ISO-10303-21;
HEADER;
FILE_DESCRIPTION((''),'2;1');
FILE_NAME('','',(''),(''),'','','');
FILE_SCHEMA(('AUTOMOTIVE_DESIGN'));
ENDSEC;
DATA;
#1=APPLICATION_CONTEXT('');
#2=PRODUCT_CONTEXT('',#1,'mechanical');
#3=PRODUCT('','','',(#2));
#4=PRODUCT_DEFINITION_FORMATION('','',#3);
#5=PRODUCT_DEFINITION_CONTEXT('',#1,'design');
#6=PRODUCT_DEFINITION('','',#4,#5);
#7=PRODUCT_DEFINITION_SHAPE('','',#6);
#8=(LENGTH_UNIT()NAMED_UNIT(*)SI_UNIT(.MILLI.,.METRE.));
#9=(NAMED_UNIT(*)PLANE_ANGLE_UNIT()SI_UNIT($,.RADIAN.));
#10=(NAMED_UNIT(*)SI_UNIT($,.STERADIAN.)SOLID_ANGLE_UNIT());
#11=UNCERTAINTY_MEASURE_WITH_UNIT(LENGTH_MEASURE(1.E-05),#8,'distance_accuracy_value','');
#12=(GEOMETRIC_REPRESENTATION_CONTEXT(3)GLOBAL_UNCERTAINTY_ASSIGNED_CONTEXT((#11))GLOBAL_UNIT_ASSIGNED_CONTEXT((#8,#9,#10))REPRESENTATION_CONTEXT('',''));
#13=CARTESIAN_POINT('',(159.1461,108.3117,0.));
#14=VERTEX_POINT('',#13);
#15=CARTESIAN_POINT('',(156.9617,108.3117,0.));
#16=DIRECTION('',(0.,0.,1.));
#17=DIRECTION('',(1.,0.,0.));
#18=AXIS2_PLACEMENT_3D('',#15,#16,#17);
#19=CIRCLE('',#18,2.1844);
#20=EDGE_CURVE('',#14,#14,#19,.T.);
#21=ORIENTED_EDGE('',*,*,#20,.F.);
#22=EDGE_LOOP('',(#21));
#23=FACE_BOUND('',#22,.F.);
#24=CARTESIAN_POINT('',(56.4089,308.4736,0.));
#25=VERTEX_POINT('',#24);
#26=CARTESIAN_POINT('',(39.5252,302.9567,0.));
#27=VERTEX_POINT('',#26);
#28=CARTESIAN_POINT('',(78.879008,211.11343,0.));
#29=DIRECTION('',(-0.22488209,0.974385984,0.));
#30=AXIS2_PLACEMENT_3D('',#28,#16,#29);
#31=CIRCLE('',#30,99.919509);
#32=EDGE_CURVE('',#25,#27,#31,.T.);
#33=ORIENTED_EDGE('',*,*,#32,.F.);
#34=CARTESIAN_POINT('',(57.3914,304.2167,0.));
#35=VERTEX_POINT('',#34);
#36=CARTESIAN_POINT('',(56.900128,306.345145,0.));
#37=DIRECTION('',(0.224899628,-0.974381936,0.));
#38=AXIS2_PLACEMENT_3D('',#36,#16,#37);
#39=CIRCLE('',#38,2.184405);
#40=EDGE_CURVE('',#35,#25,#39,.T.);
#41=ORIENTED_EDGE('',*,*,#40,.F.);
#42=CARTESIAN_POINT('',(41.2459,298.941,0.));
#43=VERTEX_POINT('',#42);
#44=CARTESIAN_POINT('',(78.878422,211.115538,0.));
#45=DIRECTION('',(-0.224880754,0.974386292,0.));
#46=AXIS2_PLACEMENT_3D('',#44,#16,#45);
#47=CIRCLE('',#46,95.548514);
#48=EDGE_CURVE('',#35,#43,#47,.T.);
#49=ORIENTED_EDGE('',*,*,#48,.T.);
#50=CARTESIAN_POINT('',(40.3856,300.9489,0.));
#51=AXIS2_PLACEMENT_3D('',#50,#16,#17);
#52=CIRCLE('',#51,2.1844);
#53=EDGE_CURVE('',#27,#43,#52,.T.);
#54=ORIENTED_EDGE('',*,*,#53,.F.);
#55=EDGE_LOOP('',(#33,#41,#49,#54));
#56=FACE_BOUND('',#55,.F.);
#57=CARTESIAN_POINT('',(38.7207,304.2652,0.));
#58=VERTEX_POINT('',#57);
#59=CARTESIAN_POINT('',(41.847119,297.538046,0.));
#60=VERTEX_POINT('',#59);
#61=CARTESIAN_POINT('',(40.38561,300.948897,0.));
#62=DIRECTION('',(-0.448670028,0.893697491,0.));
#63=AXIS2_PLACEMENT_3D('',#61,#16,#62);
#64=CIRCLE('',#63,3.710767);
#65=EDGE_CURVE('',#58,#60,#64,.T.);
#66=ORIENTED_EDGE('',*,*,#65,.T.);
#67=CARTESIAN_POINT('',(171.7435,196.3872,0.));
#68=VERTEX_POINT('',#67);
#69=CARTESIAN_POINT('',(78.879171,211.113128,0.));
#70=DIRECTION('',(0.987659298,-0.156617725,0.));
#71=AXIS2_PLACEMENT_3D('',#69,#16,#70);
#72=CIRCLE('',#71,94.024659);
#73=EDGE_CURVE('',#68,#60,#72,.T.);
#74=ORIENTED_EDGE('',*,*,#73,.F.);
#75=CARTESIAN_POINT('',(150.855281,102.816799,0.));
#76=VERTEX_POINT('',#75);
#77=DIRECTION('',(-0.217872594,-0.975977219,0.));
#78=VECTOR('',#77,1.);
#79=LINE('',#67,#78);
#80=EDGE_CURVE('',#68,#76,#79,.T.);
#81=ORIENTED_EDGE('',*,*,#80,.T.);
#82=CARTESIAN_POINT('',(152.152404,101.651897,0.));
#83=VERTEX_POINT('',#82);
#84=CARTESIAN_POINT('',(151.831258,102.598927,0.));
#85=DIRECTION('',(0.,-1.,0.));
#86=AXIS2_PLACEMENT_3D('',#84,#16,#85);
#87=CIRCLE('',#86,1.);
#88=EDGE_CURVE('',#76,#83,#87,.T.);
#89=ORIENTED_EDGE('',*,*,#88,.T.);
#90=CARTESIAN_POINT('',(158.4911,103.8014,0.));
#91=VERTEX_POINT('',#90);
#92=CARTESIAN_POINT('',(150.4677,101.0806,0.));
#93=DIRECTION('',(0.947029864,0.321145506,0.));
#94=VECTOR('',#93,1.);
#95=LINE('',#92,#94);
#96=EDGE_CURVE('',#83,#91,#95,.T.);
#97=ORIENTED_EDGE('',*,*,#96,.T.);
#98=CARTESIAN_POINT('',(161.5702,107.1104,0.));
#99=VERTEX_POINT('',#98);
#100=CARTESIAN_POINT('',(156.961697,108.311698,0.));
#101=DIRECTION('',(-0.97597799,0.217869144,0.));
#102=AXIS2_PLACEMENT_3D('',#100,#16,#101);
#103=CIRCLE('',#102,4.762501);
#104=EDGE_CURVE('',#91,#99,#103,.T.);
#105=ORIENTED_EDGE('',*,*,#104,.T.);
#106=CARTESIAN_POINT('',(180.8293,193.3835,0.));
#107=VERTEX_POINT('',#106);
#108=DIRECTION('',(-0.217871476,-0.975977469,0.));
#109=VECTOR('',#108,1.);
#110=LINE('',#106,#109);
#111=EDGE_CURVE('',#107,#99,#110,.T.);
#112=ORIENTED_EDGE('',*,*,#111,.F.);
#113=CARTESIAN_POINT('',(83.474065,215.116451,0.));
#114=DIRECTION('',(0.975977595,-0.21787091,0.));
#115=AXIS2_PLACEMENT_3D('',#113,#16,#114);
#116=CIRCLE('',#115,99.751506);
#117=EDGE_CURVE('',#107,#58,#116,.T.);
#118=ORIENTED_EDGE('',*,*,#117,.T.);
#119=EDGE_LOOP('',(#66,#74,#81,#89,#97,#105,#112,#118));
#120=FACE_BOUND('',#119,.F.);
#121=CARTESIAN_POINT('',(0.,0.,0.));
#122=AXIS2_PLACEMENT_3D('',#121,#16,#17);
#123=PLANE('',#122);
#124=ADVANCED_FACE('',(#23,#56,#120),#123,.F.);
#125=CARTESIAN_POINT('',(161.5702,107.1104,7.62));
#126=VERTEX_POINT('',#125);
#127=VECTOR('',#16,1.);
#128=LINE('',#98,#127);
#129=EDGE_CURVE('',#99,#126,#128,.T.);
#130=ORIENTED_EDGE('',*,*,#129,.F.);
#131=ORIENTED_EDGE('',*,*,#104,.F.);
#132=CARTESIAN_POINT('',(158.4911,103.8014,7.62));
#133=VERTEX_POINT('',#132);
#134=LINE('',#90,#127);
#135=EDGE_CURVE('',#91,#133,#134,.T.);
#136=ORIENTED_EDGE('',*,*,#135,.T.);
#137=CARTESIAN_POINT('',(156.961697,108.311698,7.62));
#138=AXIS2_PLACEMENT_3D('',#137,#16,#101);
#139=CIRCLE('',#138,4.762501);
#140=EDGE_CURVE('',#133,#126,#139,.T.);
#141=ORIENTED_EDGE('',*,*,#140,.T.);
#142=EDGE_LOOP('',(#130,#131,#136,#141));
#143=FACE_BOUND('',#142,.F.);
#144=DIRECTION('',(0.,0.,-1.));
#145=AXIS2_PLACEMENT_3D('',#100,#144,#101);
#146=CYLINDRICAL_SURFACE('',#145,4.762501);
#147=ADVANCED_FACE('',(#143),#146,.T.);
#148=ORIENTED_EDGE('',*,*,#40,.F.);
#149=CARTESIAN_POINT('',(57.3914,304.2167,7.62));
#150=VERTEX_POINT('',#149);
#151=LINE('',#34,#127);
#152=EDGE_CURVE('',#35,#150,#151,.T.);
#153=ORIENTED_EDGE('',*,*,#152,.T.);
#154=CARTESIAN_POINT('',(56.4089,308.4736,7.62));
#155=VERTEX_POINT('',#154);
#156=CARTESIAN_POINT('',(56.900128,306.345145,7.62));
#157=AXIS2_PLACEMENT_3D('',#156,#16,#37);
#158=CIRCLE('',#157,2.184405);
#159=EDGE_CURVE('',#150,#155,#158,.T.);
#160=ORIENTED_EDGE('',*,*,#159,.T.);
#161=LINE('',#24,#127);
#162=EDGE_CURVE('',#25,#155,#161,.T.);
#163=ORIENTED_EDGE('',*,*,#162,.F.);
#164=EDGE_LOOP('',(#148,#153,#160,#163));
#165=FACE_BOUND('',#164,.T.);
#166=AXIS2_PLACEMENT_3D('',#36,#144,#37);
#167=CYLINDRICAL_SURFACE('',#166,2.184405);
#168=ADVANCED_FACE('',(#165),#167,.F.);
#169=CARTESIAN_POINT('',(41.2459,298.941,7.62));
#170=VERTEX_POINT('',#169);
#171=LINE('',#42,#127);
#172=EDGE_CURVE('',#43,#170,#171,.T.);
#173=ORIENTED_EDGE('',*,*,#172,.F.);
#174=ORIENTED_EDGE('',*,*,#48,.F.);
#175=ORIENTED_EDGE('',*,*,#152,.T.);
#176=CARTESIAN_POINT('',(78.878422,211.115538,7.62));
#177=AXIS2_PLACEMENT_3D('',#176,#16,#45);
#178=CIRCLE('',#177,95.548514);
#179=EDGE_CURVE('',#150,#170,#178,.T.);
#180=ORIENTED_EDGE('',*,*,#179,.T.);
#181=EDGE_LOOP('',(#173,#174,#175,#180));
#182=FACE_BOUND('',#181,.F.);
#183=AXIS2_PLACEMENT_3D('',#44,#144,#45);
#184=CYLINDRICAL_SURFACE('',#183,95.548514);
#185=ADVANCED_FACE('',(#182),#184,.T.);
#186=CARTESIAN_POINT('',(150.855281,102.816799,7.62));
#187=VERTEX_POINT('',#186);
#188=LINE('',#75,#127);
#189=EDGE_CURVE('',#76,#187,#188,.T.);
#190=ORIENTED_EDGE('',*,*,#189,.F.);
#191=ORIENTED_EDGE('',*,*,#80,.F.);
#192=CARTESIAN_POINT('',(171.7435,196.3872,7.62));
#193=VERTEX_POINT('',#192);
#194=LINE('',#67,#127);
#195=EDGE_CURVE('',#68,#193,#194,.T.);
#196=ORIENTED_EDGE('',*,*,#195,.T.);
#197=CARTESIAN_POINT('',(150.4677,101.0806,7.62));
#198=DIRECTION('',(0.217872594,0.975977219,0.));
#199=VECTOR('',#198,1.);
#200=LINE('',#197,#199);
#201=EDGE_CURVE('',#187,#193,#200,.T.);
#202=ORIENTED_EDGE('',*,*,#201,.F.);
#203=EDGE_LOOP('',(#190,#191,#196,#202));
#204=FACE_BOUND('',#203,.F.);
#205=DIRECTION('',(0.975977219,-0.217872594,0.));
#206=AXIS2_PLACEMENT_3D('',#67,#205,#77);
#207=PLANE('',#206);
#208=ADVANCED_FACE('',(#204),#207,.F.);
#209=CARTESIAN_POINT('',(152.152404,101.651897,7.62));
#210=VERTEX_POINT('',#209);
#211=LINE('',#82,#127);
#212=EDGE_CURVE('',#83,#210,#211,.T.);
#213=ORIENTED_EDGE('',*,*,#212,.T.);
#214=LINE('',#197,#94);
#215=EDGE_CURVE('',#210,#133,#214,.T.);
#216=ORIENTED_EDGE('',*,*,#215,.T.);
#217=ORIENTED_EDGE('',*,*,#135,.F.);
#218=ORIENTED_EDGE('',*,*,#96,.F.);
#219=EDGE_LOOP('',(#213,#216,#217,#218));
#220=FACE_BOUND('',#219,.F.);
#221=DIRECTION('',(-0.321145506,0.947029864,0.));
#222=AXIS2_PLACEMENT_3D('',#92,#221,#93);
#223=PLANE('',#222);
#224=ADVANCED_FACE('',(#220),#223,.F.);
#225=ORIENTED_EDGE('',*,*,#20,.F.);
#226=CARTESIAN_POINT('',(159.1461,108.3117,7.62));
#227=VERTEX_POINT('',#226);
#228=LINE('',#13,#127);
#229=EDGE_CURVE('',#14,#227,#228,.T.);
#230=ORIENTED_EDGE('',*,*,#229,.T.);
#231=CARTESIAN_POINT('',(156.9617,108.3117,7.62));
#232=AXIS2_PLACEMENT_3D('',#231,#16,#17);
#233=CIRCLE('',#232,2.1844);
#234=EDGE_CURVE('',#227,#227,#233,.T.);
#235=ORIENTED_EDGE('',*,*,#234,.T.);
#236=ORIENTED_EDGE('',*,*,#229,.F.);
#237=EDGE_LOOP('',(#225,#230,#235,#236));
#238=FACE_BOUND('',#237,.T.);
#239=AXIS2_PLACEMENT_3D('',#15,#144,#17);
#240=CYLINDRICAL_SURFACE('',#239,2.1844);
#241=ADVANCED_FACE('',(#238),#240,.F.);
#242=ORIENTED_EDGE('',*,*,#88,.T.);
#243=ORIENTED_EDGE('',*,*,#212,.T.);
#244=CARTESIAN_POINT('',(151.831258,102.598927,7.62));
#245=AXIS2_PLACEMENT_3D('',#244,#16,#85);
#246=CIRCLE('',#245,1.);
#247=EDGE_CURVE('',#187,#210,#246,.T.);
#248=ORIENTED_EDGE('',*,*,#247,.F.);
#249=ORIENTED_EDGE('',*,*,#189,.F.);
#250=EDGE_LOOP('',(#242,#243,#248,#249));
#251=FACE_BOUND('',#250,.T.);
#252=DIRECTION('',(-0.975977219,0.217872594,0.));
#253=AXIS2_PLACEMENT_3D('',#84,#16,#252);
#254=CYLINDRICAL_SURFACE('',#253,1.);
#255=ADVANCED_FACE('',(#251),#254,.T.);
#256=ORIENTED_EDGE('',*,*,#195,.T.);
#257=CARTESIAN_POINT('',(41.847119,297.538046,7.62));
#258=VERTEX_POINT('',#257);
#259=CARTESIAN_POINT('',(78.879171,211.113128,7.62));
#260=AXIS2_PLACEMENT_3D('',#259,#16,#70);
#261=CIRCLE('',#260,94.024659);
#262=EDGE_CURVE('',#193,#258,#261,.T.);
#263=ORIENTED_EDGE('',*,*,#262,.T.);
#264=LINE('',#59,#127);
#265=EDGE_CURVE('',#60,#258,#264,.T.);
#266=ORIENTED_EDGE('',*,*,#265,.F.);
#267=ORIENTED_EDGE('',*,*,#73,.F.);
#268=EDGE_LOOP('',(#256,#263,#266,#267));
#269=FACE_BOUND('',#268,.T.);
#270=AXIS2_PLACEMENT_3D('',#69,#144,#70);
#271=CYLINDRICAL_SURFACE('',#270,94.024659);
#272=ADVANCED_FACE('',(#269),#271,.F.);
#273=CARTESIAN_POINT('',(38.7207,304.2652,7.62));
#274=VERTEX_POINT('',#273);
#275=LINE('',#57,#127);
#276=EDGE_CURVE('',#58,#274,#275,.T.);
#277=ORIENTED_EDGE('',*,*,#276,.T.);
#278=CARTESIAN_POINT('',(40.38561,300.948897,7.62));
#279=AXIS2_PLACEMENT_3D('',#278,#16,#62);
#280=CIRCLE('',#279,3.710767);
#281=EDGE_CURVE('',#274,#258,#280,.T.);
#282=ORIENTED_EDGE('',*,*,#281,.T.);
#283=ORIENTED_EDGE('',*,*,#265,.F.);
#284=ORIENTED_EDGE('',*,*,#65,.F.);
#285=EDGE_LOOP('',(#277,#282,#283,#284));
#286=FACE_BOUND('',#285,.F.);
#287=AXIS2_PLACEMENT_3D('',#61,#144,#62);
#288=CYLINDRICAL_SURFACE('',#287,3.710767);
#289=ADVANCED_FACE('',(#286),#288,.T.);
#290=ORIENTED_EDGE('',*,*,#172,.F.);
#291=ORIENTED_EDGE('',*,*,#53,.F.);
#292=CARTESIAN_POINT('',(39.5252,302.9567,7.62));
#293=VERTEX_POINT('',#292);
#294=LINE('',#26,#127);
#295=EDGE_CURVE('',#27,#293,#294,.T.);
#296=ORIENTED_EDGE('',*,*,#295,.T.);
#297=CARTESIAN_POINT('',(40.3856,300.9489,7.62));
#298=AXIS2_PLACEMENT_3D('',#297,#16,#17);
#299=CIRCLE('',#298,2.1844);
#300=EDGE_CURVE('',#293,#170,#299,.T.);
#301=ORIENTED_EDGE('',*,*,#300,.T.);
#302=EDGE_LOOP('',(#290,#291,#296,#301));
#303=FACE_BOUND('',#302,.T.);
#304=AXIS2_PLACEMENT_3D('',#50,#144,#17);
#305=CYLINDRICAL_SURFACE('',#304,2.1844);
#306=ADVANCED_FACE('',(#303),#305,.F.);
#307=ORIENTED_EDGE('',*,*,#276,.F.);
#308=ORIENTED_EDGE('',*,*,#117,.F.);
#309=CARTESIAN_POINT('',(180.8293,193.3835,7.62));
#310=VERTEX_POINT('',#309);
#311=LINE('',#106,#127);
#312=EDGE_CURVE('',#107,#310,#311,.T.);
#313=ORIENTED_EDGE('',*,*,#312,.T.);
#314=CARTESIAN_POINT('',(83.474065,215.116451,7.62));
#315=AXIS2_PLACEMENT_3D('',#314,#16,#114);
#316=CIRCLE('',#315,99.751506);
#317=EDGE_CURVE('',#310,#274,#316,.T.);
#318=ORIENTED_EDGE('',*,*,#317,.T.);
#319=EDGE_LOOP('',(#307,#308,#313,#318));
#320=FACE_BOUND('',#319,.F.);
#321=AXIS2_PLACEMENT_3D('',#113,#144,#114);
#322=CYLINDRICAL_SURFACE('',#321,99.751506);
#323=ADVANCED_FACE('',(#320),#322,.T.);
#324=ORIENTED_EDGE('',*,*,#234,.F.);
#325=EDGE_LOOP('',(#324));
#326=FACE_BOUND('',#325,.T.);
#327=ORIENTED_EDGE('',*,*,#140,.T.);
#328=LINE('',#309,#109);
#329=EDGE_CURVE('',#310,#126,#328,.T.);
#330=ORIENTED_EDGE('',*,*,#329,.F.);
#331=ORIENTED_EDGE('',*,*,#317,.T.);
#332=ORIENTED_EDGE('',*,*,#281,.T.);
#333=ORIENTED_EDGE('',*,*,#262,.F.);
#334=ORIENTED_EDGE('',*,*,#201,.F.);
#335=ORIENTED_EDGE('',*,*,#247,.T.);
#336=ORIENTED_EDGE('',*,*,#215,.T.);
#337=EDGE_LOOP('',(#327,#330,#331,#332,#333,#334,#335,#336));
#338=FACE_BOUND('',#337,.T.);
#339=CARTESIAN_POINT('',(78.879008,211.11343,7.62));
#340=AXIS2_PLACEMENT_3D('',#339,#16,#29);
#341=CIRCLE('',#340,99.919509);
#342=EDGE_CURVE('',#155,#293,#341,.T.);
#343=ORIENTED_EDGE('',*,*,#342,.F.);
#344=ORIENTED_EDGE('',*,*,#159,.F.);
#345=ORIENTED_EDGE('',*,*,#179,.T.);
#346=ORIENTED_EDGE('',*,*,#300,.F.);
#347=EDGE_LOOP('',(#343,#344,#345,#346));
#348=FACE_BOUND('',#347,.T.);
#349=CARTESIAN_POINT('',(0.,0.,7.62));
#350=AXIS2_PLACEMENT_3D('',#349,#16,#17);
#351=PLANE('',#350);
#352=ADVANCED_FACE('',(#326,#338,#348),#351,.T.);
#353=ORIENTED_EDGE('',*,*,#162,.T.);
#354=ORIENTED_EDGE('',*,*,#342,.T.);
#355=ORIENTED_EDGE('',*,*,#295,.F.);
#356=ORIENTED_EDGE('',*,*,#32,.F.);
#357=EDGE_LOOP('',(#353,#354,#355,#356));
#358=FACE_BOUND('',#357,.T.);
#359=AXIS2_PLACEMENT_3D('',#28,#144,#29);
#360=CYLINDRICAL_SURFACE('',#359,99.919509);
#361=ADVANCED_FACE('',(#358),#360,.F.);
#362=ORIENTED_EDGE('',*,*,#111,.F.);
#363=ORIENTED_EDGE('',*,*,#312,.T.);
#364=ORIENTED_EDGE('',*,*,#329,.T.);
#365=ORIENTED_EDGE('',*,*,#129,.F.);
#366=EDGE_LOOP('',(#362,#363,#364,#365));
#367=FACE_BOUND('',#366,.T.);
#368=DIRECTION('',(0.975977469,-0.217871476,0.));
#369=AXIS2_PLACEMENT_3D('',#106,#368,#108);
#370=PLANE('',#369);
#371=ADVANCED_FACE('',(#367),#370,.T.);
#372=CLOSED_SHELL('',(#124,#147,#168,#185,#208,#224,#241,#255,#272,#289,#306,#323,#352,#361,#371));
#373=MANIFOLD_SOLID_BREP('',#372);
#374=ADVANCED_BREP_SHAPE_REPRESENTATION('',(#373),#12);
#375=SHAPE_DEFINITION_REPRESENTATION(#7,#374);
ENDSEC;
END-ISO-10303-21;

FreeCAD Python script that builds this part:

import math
import FreeCAD as App
import Part
import Sketcher
from FreeCAD import Vector
Q = App.Units.Quantity


def edges_at(feature, points):
    """Names of the edges that pass closest to the given points."""
    edges = feature.Shape.Edges
    near = lambda p: min(range(len(edges)), key=lambda i: edges[i].distToShape(Part.Vertex(*p))[0])
    return sorted({f"Edge{near(p) + 1}" for p in points})

doc = App.newDocument("Part")
body = doc.addObject("PartDesign::Body", "Body")

sketch1 = body.newObject("Sketcher::SketchObject", "Sketch")
sketch1.AttachmentSupport = (doc.getObject("XY_Plane"), [""])
sketch1.MapMode = "FlatFace"
sketch1.addGeometry(Part.ArcOfCircle(Part.Circle(Vector(78.8791, 211.1131, 0), Vector(0, 0, 1), 94.024725), math.radians(-9.010607), math.radians(113.194512)), False)
sketch1.addGeometry(Part.LineSegment(Vector(171.7435, 196.3872, 0), Vector(150.4677, 101.0806, 0)), False)
sketch1.addGeometry(Part.LineSegment(Vector(150.4677, 101.0806, 0), Vector(158.4911, 103.8014, 0)), False)
sketch1.addGeometry(Part.ArcOfCircle(Part.Circle(Vector(156.9617, 108.3117, 0), Vector(0, 0, 1), 4.762504), math.radians(-71.268689), math.radians(-14.610195)), False)
sketch1.addGeometry(Part.LineSegment(Vector(161.5702, 107.1104, 0), Vector(180.8293, 193.3835, 0)), False)
sketch1.addGeometry(Part.ArcOfCircle(Part.Circle(Vector(83.4742, 215.1165, 0), Vector(0, 0, 1), 99.751385), math.radians(-12.584056), math.radians(116.657089)), False)
sketch1.addGeometry(Part.ArcOfCircle(Part.Circle(Vector(40.3856, 300.9489, 0), Vector(0, 0, 1), 3.71076), math.radians(116.658271), math.radians(293.194676)), False)
sketch1.addGeometry(Part.Circle(Vector(156.9617, 108.3117, 0), Vector(0, 0, 1), 2.1844), False)
sketch1.addGeometry(Part.ArcOfCircle(Part.Circle(Vector(40.3856, 300.9489, 0), Vector(0, 0, 1), 2.1844), math.radians(113.196524), math.radians(293.19308)), False)
sketch1.addGeometry(Part.ArcOfCircle(Part.Circle(Vector(78.8791, 211.1131, 0), Vector(0, 0, 1), 99.919852), math.radians(102.995953), math.radians(113.194562)), False)
sketch1.addGeometry(Part.ArcOfCircle(Part.Circle(Vector(56.9002, 306.3451, 0), Vector(0, 0, 1), 2.184345), math.radians(-77.004597), math.radians(102.997369)), False)
sketch1.addGeometry(Part.ArcOfCircle(Part.Circle(Vector(78.878422, 211.115538, 0), Vector(0, 0, 1), 95.548514), math.radians(102.995866), math.radians(113.194753)), False)
sketch1.addConstraint(Sketcher.Constraint("Coincident", 0, 1, 1, 1))
sketch1.addConstraint(Sketcher.Constraint("Coincident", 1, 2, 2, 1))
sketch1.addConstraint(Sketcher.Constraint("Coincident", 2, 2, 3, 1))
sketch1.addConstraint(Sketcher.Constraint("Coincident", 3, 2, 4, 1))
sketch1.addConstraint(Sketcher.Constraint("Coincident", 4, 2, 5, 1))
sketch1.addConstraint(Sketcher.Constraint("Coincident", 5, 2, 6, 1))
sketch1.addConstraint(Sketcher.Constraint("Coincident", 6, 2, 0, 2))
sketch1.addConstraint(Sketcher.Constraint("Coincident", 8, 1, 9, 2))
sketch1.addConstraint(Sketcher.Constraint("Coincident", 9, 1, 10, 2))
sketch1.addConstraint(Sketcher.Constraint("Coincident", 10, 1, 11, 1))
sketch1.addConstraint(Sketcher.Constraint("Coincident", 11, 2, 8, 2))
sketch1.addConstraint(Sketcher.Constraint("Coincident", 7, 3, 3, 3))
sketch1.addConstraint(Sketcher.Constraint("Coincident", 8, 3, 6, 3))
sketch1.addConstraint(Sketcher.Constraint("Coincident", 9, 3, 0, 3))
sketch1.addConstraint(Sketcher.Constraint("Radius", 3, Q("0.1875 in")))
sketch1.addConstraint(Sketcher.Constraint("Diameter", 7, Q("0.172 in")))
sketch1.addConstraint(Sketcher.Constraint("Radius", 8, Q("0.086 in")))
sketch1.addConstraint(Sketcher.Constraint("Radius", 10, Q("0.086 in")))
sketch1.addConstraint(Sketcher.Constraint("Radius", 6, Q("0.1461 in")))
sketch1.addConstraint(Sketcher.Constraint("Radius", 0, Q("94.0247 mm")))
sketch1.addConstraint(Sketcher.Constraint("Radius", 5, Q("99.7514 mm")))
sketch1.addConstraint(Sketcher.Constraint("Radius", 11, Q("95.5485 mm")))
sketch1.addConstraint(Sketcher.Constraint("DistanceY", 1, 2, 0, 3, Q("4.332 in")))
sketch1.addConstraint(Sketcher.Constraint("DistanceX", 5, 2, 11, 3, Q("1.581 in")))
sketch1.addConstraint(Sketcher.Constraint("DistanceX", -1, 1, 3, 3, Q("6.1796 in")))
sketch1.addConstraint(Sketcher.Constraint("DistanceX", -1, 1, 2, 2, Q("6.2398 in")))
sketch1.addConstraint(Sketcher.Constraint("DistanceY", -1, 1, 6, 2, Q("11.7141 in")))
sketch1.addConstraint(Sketcher.Constraint("DistanceX", -1, 1, 8, 1, Q("1.5561 in")))
sketch1.addConstraint(Sketcher.Constraint("DistanceX", -1, 1, 10, 1, Q("2.2595 in")))
sketch1.addConstraint(Sketcher.Constraint("DistanceY", 3, 3, 0, 3, Q("4.0473 in")))
sketch1.addConstraint(Sketcher.Constraint("DistanceX", 0, 3, 5, 3, Q("0.1809 in")))
sketch1.addConstraint(Sketcher.Constraint("DistanceX", 5, 3, 3, 3, Q("2.8932 in")))
sketch1.addConstraint(Sketcher.Constraint("DistanceX", 6, 3, 5, 3, Q("1.6964 in")))
sketch1.addConstraint(Sketcher.Constraint("DistanceX", 10, 3, 0, 3, Q("0.8653 in")))
sketch1.addConstraint(Sketcher.Constraint("DistanceY", 2, 2, 0, 1, Q("3.6451 in")))
sketch1.addConstraint(Sketcher.Constraint("DistanceY", 3, 2, 3, 3, Q("0.0473 in")))
sketch1.addConstraint(Sketcher.Constraint("DistanceX", 1, 2, 3, 2, Q("0.4371 in")))
sketch1.addConstraint(Sketcher.Constraint("DistanceX", 0, 1, 4, 2, Q("0.3577 in")))
sketch1.addConstraint(Sketcher.Constraint("DistanceY", 10, 3, 9, 1, Q("0.0838 in")))
sketch1.addConstraint(Sketcher.Constraint("DistanceY", 11, 2, 8, 1, Q("0.1581 in")))
sketch1.addConstraint(Sketcher.Constraint("DistanceY", -1, 1, 0, 3, Q("211.113 mm")))
pad1 = body.newObject("PartDesign::Pad", "Pad")
pad1.Profile = sketch1
pad1.Length = Q("0.3 in")
doc.recompute()

fillet = body.newObject("PartDesign::Fillet", "Fillet")
fillet.Base = (pad1, edges_at(pad1, [(150.468, 101.081, 3.81)]))
fillet.Radius = 1

doc.recompute()
